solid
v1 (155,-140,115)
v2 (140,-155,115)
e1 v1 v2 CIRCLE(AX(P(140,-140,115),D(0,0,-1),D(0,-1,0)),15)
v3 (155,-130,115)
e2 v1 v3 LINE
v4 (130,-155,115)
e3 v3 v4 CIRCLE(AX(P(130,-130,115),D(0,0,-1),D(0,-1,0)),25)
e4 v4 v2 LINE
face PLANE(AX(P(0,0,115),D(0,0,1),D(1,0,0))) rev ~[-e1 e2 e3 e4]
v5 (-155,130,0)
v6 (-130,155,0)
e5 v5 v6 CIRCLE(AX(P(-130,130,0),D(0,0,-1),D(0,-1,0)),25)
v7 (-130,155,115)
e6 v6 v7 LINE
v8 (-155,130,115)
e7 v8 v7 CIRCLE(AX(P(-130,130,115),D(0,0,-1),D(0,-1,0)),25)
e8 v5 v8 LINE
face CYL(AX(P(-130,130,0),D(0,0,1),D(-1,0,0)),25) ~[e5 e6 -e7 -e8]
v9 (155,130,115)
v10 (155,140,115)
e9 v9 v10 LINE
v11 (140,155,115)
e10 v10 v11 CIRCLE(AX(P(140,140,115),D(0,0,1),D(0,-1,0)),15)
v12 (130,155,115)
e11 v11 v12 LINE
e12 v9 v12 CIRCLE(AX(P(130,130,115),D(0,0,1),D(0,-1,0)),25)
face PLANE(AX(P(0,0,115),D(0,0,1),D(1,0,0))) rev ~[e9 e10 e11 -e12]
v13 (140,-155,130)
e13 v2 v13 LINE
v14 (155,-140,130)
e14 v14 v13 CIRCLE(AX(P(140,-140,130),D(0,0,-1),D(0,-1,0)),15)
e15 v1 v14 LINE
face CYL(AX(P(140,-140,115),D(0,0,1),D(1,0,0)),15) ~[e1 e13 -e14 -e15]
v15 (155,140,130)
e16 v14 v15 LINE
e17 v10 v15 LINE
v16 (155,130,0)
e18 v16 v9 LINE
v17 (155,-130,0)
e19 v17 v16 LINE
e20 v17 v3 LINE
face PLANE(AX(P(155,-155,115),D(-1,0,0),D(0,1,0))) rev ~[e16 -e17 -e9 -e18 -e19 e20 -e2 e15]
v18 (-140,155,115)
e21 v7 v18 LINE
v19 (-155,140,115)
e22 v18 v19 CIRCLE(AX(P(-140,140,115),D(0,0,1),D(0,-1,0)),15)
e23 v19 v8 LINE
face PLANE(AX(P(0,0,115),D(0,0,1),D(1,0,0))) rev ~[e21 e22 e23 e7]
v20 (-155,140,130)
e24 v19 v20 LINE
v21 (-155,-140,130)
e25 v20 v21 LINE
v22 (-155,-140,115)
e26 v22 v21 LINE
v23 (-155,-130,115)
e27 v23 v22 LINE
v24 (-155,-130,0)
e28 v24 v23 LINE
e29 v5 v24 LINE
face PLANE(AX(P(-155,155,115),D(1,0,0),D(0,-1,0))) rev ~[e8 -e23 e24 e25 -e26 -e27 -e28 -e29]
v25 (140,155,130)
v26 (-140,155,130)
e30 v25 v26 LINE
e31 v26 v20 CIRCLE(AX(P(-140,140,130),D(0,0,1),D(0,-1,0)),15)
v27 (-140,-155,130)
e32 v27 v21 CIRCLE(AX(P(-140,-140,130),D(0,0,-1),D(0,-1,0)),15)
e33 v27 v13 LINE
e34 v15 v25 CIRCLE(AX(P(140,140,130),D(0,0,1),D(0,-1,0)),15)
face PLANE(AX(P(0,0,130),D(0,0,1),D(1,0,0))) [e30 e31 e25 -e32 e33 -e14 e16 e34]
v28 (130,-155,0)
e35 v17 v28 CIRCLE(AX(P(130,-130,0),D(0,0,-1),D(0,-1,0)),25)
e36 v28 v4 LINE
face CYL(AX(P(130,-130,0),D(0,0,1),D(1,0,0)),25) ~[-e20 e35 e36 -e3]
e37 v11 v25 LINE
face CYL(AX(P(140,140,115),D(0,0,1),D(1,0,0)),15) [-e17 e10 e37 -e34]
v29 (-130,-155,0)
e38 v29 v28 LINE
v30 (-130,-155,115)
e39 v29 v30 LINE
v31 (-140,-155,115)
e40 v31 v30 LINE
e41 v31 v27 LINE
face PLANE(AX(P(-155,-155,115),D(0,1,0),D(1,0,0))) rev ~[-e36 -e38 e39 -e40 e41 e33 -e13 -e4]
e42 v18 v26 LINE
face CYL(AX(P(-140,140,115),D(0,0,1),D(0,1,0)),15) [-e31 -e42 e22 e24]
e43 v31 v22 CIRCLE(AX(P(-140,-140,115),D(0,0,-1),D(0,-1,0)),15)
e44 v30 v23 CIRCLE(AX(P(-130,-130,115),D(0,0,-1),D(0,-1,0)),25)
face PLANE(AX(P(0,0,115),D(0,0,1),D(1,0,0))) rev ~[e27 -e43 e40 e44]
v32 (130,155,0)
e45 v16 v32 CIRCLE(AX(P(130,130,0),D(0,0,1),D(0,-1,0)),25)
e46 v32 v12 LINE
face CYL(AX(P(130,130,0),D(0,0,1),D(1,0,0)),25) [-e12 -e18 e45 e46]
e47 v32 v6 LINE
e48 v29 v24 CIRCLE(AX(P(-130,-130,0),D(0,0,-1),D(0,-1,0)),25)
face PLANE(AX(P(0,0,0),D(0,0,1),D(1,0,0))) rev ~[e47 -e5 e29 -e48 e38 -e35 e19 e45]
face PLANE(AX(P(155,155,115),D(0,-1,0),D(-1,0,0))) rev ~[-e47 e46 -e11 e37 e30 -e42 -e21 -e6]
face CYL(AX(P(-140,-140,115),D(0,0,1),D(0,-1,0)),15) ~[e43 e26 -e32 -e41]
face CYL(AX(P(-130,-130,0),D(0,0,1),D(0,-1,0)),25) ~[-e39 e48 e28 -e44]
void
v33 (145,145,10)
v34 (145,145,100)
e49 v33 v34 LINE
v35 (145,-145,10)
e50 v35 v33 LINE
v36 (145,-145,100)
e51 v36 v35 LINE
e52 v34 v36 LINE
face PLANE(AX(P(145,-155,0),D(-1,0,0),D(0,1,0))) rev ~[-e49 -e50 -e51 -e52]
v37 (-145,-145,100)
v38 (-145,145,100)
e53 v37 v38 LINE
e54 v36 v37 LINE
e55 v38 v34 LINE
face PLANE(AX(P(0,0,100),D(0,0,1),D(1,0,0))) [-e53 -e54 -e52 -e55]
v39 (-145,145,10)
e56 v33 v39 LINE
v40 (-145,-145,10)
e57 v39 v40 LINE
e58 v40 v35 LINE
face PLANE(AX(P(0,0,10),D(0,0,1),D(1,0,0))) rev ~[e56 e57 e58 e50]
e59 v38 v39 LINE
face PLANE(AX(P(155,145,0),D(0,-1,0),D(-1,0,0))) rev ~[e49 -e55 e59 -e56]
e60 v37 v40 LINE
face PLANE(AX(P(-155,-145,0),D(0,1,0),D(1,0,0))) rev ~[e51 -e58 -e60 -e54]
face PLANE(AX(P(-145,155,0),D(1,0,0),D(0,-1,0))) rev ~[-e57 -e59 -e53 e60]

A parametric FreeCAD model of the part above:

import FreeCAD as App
import Part
import Sketcher

V = App.Vector


def edges_at(feature, points):
    """Names of the edges that pass closest to the given points."""
    edges = feature.Shape.Edges
    near = lambda p: min(range(len(edges)), key=lambda i: edges[i].distToShape(Part.Vertex(*p))[0])
    return sorted({f"Edge{near(p) + 1}" for p in points})


def faces_at(feature, points):
    """Names of the faces that lie closest to the given points."""
    faces = feature.Shape.Faces
    near = lambda p: min(range(len(faces)), key=lambda i: faces[i].distToShape(Part.Vertex(*p))[0])
    return sorted({f"Face{near(p) + 1}" for p in points})


def add_polygon(sketch, points):
    """Adds a closed chain of lines whose ends are joined by coincident constraints."""
    first, n = sketch.GeometryCount, len(points)
    for a, b in zip(points, points[1:] + points[:1]):
        sketch.addGeometry(Part.LineSegment(App.Vector(*a, 0), App.Vector(*b, 0)), False)
    for i in range(n):
        sketch.addConstraint(Sketcher.Constraint("Coincident", first + i, 2, first + (i + 1) % n, 1))

doc = App.newDocument("Part")
body = doc.addObject("PartDesign::Body", "Body")

sketch1 = doc.addObject("Sketcher::SketchObject", "Sketch")
body.addObject(sketch1)
sketch1.AttachmentSupport = (doc.XY_Plane, [""])
sketch1.MapMode = "FlatFace"
add_polygon(sketch1, [(155, -155), (155, 155), (-155, 155), (-155, -155)])
sketch1.addConstraint([
    Sketcher.Constraint("Vertical", 0),
    Sketcher.Constraint("Horizontal", 1),
    Sketcher.Constraint("Vertical", 2),
    Sketcher.Constraint("Horizontal", 3),
    Sketcher.Constraint("Symmetric", 0, 2, 2, 2, -1, 1),
    Sketcher.Constraint("Equal", 3, 0),
    Sketcher.Constraint("DistanceX", 1, 2, 1, 1, 310.0),
])
pad1 = doc.addObject("PartDesign::Pad", "Pad")
body.addObject(pad1)
pad1.Profile = sketch1
pad1.Length = 115
doc.recompute()

thickness = doc.addObject("PartDesign::Thickness", "Thickness")
body.addObject(thickness)
thickness.Base = (pad1, faces_at(pad1, [(-51.667, 51.667, 115)]))
thickness.Value = 10
thickness.Reversed = True
thickness.Join = "Intersection"
doc.recompute()

fillet = doc.addObject("PartDesign::Fillet", "Fillet")
body.addObject(fillet)
fillet.Base = (thickness, edges_at(thickness, [
    (-155, -155, 57.5),
    (155, -155, 57.5),
    (-155, 155, 57.5),
    (155, 155, 57.5),
]))
fillet.Radius = 25

sketch2 = doc.addObject("Sketcher::SketchObject", "Sketch001")
body.addObject(sketch2)
sketch2.AttachmentSupport = (doc.XY_Plane, [""])
sketch2.MapMode = "FlatFace"
sketch2.AttachmentOffset = App.Placement(V(0, 0, 115), App.Rotation())
add_polygon(sketch2, [(145, 145), (-145, 145), (-145, -145), (145, -145)])
sketch2.addConstraint([
    Sketcher.Constraint("Horizontal", 0),
    Sketcher.Constraint("Vertical", 1),
    Sketcher.Constraint("Horizontal", 2),
    Sketcher.Constraint("Vertical", 3),
    Sketcher.Constraint("Symmetric", 0, 2, 2, 2, -1, 1),
    Sketcher.Constraint("Equal", 2, 1),
    Sketcher.Constraint("DistanceX", 0, 2, 0, 1, 290.0),
])
pad2 = doc.addObject("PartDesign::Pad", "Pad001")
body.addObject(pad2)
pad2.Profile = sketch2
pad2.Length = 15
pad2.Reversed = True

sketch3 = doc.addObject("Sketcher::SketchObject", "Sketch002")
body.addObject(sketch3)
sketch3.AttachmentSupport = (doc.XY_Plane, [""])
sketch3.MapMode = "FlatFace"
sketch3.AttachmentOffset = App.Placement(V(0, 0, 115), App.Rotation())
add_polygon(sketch3, [(155, -155), (155, 155), (-155, 155), (-155, -155)])
sketch3.addConstraint([
    Sketcher.Constraint("Vertical", 0),
    Sketcher.Constraint("Horizontal", 1),
    Sketcher.Constraint("Vertical", 2),
    Sketcher.Constraint("Horizontal", 3),
    Sketcher.Constraint("Symmetric", 0, 2, 2, 2, -1, 1),
    Sketcher.Constraint("Equal", 3, 0),
    Sketcher.Constraint("DistanceX", 1, 2, 1, 1, 310.0),
])
pad3 = doc.addObject("PartDesign::Pad", "Pad002")
body.addObject(pad3)
pad3.Profile = sketch3
pad3.Length = 15
doc.recompute()

fillet2 = doc.addObject("PartDesign::Fillet", "Fillet001")
body.addObject(fillet2)
fillet2.Base = (pad3, edges_at(pad3, [
    (-155, 155, 122.5),
    (-155, -155, 122.5),
    (155, -155, 122.5),
    (155, 155, 122.5),
]))
fillet2.Radius = 15

doc.recompute()
